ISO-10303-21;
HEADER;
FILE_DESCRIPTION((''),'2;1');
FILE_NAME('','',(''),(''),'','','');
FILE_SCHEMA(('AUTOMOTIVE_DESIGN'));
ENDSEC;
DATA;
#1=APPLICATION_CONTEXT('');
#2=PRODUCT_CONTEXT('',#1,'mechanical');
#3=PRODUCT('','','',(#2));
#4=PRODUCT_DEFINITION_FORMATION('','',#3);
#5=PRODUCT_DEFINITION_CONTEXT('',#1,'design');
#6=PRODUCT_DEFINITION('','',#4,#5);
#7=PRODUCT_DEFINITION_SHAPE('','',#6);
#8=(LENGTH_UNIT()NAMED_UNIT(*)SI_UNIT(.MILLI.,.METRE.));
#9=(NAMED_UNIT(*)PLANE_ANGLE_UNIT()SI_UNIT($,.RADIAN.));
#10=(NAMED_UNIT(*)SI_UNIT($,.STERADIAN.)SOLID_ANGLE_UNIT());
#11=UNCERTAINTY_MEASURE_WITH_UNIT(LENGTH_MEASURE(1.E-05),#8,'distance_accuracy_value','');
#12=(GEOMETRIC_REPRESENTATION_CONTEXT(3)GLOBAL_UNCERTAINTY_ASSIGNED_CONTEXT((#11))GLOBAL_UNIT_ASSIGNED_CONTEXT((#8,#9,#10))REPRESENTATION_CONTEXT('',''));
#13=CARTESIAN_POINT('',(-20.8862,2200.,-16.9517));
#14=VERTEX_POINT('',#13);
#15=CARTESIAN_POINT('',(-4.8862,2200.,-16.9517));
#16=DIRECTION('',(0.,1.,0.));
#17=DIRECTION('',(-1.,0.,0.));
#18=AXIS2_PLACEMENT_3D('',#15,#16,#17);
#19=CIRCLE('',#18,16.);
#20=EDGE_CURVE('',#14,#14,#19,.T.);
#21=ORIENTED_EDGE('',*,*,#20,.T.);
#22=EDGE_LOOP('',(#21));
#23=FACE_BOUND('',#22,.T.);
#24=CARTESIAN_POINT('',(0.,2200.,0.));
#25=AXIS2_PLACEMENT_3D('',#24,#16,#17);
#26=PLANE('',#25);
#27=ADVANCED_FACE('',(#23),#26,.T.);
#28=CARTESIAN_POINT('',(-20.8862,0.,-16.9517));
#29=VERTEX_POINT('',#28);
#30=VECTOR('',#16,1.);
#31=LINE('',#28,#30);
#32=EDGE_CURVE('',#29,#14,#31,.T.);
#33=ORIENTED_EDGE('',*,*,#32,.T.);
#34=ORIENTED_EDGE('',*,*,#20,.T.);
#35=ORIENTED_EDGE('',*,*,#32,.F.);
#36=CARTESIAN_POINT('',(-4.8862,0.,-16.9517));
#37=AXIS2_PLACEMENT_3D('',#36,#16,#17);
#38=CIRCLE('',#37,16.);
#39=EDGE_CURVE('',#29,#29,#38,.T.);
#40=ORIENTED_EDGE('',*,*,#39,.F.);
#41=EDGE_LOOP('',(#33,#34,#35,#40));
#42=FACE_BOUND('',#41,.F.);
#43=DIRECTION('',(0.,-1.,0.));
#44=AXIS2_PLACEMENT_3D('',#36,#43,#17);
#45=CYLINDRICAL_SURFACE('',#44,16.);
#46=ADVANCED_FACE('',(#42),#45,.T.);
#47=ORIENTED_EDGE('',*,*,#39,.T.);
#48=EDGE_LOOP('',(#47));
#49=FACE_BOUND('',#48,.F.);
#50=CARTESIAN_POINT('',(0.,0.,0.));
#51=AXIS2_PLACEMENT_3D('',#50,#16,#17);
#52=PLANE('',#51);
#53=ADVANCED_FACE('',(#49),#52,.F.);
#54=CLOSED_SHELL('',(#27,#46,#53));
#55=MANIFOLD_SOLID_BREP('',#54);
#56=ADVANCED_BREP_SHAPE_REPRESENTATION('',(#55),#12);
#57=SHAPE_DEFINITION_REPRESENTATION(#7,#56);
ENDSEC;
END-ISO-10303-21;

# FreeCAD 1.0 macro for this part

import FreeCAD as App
import Part
import Sketcher

doc = App.newDocument("Part")
body = doc.addObject("PartDesign::Body", "Body")

# Sketch on XZ plane
sketch1 = body.newObject("Sketcher::SketchObject", "Sketch")
sketch1.AttachmentSupport = (doc.getObject("XZ_Plane"), [""])
sketch1.MapMode = "FlatFace"
sketch1.addGeometry(Part.Circle(App.Vector(-4.8862, -16.9517, 0), App.Vector(0, 0, 1), 16), False)
sketch1.addConstraint([
    Sketcher.Constraint("Diameter", 0, 32.0),
    Sketcher.Constraint("DistanceX", 0, 3, -1, 1, 4.8862),
    Sketcher.Constraint("DistanceY", 0, 3, -1, 1, 16.9517),
])
pad1 = body.newObject("PartDesign::Pad", "Pad")
pad1.Profile = sketch1
pad1.Length = 2200
pad1.Reversed = True

doc.recompute()
